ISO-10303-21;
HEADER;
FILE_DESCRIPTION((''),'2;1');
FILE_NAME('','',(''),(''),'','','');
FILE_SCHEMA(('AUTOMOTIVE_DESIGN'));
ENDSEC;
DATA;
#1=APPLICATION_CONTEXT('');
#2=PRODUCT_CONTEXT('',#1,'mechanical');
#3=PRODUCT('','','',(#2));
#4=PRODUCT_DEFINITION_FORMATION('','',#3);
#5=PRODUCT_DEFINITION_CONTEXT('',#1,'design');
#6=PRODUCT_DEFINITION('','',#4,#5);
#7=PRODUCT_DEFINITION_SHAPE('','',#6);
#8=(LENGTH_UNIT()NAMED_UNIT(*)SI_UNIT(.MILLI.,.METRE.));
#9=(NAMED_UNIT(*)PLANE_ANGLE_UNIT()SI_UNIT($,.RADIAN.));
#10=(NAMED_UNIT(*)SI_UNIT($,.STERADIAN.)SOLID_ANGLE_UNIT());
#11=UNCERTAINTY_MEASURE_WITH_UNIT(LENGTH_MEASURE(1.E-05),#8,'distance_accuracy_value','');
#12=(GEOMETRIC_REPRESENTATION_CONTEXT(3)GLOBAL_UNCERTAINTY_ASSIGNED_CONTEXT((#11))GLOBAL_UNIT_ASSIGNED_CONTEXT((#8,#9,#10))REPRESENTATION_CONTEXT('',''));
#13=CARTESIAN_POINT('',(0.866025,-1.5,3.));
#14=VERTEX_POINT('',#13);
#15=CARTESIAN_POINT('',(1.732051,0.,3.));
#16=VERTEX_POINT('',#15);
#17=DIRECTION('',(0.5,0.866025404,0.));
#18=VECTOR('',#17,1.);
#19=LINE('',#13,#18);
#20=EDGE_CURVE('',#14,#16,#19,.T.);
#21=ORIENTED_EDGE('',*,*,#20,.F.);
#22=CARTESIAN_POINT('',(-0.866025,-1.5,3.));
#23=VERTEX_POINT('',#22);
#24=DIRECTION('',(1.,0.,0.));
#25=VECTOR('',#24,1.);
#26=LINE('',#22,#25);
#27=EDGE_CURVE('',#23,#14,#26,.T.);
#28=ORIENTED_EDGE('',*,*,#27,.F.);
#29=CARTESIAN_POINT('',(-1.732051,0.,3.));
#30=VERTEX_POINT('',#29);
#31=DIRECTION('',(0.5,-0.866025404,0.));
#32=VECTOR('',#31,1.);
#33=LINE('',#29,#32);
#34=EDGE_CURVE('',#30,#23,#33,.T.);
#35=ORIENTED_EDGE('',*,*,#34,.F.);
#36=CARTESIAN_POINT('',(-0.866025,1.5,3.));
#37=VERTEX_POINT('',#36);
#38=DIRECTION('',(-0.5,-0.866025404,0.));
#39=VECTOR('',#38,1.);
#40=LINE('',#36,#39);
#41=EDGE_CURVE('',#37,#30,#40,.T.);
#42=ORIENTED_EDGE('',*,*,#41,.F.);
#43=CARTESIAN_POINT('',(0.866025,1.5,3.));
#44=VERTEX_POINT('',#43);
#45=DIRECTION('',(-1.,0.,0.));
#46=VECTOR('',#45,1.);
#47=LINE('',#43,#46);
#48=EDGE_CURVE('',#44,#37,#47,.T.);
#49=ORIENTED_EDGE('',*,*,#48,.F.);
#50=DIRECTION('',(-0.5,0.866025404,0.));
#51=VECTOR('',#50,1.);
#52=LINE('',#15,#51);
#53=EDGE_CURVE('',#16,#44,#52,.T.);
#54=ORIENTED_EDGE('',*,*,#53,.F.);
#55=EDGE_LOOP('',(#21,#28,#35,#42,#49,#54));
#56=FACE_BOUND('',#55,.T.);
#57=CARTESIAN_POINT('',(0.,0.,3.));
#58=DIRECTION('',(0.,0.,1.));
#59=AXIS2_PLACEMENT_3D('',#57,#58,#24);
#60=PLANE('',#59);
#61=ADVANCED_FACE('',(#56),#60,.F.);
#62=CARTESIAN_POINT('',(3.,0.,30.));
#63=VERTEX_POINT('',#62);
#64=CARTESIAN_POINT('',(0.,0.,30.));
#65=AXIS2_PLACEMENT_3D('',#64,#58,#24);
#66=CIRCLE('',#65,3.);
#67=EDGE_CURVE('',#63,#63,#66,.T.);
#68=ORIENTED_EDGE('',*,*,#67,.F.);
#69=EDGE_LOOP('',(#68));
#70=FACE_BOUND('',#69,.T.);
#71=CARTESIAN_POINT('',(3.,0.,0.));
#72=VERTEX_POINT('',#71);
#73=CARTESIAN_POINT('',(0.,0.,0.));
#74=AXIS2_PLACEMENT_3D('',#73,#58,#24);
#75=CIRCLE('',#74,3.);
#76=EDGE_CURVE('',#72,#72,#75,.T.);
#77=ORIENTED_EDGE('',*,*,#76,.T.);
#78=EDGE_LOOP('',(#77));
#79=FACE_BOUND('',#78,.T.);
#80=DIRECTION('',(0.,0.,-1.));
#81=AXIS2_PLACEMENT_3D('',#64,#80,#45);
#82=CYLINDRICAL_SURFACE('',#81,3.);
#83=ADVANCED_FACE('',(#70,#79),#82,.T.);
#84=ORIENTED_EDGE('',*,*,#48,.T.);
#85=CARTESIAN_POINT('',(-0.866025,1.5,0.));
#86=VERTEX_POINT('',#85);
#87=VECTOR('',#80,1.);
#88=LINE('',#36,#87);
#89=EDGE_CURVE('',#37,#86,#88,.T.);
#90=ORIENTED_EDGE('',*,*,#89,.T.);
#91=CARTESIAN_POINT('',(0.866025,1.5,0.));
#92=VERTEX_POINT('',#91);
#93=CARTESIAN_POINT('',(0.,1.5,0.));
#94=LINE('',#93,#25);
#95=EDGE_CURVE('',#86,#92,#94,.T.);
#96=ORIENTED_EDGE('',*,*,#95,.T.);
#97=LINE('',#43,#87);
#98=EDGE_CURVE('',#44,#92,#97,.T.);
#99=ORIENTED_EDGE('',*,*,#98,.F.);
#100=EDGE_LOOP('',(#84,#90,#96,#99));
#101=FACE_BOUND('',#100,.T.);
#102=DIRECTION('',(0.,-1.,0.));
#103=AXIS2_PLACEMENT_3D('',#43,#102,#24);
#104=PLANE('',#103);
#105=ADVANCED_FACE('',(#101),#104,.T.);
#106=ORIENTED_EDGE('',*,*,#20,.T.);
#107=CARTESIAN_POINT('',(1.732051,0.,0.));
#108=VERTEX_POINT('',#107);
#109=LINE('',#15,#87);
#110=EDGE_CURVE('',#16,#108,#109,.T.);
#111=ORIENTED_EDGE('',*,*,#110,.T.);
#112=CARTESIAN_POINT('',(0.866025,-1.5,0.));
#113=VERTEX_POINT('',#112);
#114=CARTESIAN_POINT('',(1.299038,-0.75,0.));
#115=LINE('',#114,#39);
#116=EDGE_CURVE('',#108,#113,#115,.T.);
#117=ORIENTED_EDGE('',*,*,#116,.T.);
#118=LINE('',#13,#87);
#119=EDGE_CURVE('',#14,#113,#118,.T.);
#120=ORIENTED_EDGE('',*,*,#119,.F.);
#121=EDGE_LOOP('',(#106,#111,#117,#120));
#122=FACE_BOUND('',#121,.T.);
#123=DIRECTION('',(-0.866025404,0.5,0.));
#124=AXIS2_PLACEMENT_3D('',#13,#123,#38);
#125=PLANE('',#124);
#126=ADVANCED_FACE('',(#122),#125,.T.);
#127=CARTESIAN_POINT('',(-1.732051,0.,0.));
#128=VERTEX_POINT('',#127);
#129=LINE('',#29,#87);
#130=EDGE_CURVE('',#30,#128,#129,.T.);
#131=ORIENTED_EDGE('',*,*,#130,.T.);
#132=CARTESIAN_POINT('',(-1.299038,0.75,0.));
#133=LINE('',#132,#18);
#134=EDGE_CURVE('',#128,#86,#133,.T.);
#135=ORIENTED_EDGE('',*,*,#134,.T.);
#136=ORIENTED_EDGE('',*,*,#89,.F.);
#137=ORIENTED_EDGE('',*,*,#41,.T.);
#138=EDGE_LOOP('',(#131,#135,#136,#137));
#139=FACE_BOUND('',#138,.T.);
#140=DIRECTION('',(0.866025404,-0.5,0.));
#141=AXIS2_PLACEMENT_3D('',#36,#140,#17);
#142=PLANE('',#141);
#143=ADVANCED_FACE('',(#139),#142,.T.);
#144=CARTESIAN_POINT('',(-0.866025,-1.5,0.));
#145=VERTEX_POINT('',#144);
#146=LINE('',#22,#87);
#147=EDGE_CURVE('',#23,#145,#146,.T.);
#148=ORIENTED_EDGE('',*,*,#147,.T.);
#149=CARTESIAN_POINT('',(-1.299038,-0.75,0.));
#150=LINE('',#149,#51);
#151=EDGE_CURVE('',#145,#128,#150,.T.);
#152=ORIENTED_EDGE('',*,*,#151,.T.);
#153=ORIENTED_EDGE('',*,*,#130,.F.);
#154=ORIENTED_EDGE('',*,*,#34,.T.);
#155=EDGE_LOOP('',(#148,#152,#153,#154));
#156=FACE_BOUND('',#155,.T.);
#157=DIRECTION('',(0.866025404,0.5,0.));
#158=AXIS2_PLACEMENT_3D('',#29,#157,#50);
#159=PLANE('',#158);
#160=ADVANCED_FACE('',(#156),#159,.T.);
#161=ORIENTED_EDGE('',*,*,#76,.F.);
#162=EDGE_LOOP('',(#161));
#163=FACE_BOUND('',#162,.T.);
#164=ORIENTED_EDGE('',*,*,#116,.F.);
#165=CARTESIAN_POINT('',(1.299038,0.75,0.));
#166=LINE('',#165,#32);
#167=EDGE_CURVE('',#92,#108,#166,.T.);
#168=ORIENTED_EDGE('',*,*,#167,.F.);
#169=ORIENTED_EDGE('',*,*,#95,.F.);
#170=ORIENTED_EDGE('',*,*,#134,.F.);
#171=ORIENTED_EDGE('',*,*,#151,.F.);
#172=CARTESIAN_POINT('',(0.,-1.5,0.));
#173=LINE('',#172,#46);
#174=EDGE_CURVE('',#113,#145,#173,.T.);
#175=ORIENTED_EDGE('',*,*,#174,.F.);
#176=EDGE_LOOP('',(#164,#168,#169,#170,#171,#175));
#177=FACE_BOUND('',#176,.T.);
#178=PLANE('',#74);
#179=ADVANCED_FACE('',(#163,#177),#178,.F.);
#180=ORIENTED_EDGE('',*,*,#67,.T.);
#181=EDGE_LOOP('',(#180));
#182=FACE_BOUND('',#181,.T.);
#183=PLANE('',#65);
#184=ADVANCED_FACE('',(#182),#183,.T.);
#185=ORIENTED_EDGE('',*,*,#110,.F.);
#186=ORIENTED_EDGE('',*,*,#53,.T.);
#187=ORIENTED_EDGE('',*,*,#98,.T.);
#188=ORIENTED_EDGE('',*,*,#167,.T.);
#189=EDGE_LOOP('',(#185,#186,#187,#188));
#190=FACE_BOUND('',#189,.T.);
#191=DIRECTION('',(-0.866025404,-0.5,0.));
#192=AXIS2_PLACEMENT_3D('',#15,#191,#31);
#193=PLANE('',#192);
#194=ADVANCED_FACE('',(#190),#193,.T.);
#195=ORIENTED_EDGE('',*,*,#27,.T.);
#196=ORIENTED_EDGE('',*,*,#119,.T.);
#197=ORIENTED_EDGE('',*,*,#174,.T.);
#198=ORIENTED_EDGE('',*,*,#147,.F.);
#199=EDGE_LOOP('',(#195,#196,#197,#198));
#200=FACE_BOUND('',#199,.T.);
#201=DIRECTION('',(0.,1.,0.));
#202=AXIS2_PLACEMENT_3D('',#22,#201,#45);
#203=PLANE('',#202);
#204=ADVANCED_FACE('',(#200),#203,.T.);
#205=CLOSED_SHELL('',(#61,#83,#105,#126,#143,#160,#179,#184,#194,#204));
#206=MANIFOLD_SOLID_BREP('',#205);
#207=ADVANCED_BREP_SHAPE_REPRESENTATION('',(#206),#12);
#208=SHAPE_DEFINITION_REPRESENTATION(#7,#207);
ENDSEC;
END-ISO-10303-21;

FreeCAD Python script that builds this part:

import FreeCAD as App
import Part
import Sketcher
Q = App.Units.Quantity

doc = App.newDocument("Part")
body = doc.addObject("PartDesign::Body", "Body")

# Sketch on XY plane
sketch1 = doc.addObject("Sketcher::SketchObject", "Sketch")
body.addObject(sketch1)
sketch1.AttachmentSupport = (doc.XY_Plane, [""])
sketch1.MapMode = "FlatFace"
sketch1.addGeometry(Part.Circle(App.Vector(0, 0, 0), App.Vector(0, 0, 1), 3), False)
sketch1.addConstraint(Sketcher.Constraint("Coincident", 0, 3, -1, 1))
sketch1.addConstraint(Sketcher.Constraint("Diameter", 0, 6.0))
pad1 = doc.addObject("PartDesign::Pad", "Pad")
body.addObject(pad1)
pad1.Profile = sketch1
pad1.Length = 30

# Sketch on XY plane
sketch2 = doc.addObject("Sketcher::SketchObject", "Sketch001")
body.addObject(sketch2)
sketch2.AttachmentSupport = (doc.XY_Plane, [""])
sketch2.MapMode = "FlatFace"
sketch2.AttachmentOffset = App.Placement(App.Vector(0, 0, -0.1), App.Rotation())
sketch2.addGeometry(Part.LineSegment(App.Vector(1.7, 0, 0), App.Vector(0.9, 1.5, 0)), False)
sketch2.addGeometry(Part.LineSegment(App.Vector(0.9, 1.5, 0), App.Vector(-0.9, 1.5, 0)), False)
sketch2.addGeometry(Part.LineSegment(App.Vector(-0.9, 1.5, 0), App.Vector(-1.7, 0, 0)), False)
sketch2.addGeometry(Part.LineSegment(App.Vector(-1.7, 0, 0), App.Vector(-0.9, -1.5, 0)), False)
sketch2.addGeometry(Part.LineSegment(App.Vector(-0.9, -1.5, 0), App.Vector(0.9, -1.5, 0)), False)
sketch2.addGeometry(Part.LineSegment(App.Vector(0.9, -1.5, 0), App.Vector(1.7, 0, 0)), False)
sketch2.addConstraint(Sketcher.Constraint("Coincident", 0, 2, 1, 1))
sketch2.addConstraint(Sketcher.Constraint("Coincident", 1, 2, 2, 1))
sketch2.addConstraint(Sketcher.Constraint("Coincident", 2, 2, 3, 1))
sketch2.addConstraint(Sketcher.Constraint("Coincident", 3, 2, 4, 1))
sketch2.addConstraint(Sketcher.Constraint("Coincident", 4, 2, 5, 1))
sketch2.addConstraint(Sketcher.Constraint("Coincident", 5, 2, 0, 1))
sketch2.addConstraint(Sketcher.Constraint("Horizontal", 1))
sketch2.addConstraint(Sketcher.Constraint("Horizontal", 4))
sketch2.addConstraint(Sketcher.Constraint("Symmetric", 0, 2, 3, 2, -1, 1))
sketch2.addConstraint(Sketcher.Constraint("Symmetric", 2, 2, 5, 2, -1, 1))
sketch2.addConstraint(Sketcher.Constraint("PointOnObject", 2, 2, -1))
sketch2.addConstraint(Sketcher.Constraint("Parallel", 2, 5))
sketch2.addConstraint(Sketcher.Constraint("Vertical", 1, 2, 3, 2))
sketch2.addConstraint(Sketcher.Constraint("Angle", 0, Q("120 deg")))
sketch2.addConstraint(Sketcher.Constraint("DistanceY", 3, 2, 1, 2, 3.0))
sketch2.addConstraint(Sketcher.Constraint("DistanceX", 1, 2, 1, 1, 1.732051))
pocket1 = doc.addObject("PartDesign::Pocket", "Pocket")
body.addObject(pocket1)
pocket1.Profile = sketch2
pocket1.Length = 3.1
pocket1.Reversed = True

doc.recompute()
